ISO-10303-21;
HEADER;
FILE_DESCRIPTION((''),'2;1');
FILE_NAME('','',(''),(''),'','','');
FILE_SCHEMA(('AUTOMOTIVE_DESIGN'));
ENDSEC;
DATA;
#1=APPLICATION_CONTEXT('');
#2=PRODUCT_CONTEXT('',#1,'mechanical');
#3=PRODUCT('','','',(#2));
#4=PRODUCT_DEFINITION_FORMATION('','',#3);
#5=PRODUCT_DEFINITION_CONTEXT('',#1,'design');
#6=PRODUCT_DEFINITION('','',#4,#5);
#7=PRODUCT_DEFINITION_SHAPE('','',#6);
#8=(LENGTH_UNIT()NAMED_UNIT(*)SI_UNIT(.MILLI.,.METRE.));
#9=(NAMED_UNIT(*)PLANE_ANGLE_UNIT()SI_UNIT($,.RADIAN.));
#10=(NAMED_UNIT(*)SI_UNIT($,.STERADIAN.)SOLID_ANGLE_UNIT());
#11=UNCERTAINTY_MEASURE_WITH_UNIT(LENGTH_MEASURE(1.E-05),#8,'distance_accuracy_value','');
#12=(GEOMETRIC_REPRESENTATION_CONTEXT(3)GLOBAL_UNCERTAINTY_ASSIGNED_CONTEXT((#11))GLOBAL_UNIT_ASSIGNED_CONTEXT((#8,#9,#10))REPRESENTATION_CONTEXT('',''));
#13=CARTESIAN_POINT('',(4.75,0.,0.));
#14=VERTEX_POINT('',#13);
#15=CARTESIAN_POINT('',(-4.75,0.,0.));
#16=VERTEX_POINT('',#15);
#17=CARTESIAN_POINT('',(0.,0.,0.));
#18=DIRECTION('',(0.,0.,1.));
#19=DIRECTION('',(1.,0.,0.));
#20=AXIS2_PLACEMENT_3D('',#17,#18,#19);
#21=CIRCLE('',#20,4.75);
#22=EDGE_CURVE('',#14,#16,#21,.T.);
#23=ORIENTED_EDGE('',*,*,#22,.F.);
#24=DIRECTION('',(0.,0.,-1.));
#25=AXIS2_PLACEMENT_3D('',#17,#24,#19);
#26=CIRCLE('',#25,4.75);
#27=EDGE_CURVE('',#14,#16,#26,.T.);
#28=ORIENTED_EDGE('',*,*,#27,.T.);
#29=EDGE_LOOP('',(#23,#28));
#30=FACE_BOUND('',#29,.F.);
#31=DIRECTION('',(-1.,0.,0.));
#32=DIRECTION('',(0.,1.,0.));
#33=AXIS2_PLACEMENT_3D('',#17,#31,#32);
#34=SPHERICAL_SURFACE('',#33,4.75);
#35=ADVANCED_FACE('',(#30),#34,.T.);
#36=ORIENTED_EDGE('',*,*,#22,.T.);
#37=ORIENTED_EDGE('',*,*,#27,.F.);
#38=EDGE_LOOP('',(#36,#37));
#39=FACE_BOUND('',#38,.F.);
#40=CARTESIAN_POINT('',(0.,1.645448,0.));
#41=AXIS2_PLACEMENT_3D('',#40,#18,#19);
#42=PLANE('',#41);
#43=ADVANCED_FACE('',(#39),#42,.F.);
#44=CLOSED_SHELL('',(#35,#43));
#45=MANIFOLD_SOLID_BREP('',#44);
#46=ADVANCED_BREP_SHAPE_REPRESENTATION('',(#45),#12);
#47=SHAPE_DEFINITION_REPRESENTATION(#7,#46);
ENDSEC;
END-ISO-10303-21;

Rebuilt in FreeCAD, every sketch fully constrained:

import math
import FreeCAD as App
import Part
import Sketcher

doc = App.newDocument("Part")
body = doc.addObject("PartDesign::Body", "Body")

sketch1 = body.newObject("Sketcher::SketchObject", "Sketch")
sketch1.AttachmentSupport = (doc.getObject("XY_Plane"), [""])
sketch1.MapMode = "FlatFace"
sketch1.addGeometry(Part.ArcOfCircle(Part.Circle(App.Vector(0, 0, 0), App.Vector(0, 0, 1), 4.75), math.radians(0), math.radians(180)), False)
sketch1.addGeometry(Part.LineSegment(App.Vector(-4.75, 0, 0), App.Vector(4.75, 0, 0)), False)
sketch1.addConstraint(Sketcher.Constraint("Coincident", 0, 1, 1, 2))
sketch1.addConstraint(Sketcher.Constraint("Coincident", 1, 1, 0, 2))
sketch1.addConstraint(Sketcher.Constraint("Horizontal", 1))
sketch1.addConstraint(Sketcher.Constraint("Coincident", 0, 3, -1, 1))
sketch1.addConstraint(Sketcher.Constraint("PointOnObject", 0, 1, -1))
sketch1.addConstraint(Sketcher.Constraint("Radius", 0, 4.75))
revolution = body.newObject("PartDesign::Revolution", "Revolution")
revolution.Profile = sketch1
revolution.ReferenceAxis = (sketch1, ["H_Axis"])
revolution.Angle = 180

doc.recompute()
